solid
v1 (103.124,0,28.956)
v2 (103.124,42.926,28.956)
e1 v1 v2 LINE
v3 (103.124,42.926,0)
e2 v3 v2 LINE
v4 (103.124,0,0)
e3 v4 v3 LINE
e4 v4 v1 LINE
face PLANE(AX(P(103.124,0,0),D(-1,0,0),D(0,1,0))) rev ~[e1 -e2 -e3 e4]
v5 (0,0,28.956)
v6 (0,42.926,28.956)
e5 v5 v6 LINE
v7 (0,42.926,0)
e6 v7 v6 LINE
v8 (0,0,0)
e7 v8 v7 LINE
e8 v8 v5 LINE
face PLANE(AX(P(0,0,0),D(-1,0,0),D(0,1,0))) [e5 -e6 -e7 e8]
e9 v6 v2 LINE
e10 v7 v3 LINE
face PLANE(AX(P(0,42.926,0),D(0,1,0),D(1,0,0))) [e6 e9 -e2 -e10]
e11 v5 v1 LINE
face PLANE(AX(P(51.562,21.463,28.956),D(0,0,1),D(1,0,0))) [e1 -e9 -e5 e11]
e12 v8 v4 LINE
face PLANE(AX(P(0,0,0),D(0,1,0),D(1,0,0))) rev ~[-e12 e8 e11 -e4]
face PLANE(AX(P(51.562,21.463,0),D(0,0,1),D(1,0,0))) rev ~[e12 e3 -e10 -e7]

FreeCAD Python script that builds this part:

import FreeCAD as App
import Part
import Sketcher

V = App.Vector
Q = App.Units.Quantity

doc = App.newDocument("Part")
body = doc.addObject("PartDesign::Body", "Body")

sketch1 = doc.addObject("Sketcher::SketchObject", "Sketch")
body.addObject(sketch1)
sketch1.AttachmentSupport = (doc.XY_Plane, [""])
sketch1.MapMode = "FlatFace"
sketch1.addGeometry(Part.LineSegment(V(0, 43, 0), V(0, 0, 0)), False)
sketch1.addGeometry(Part.LineSegment(V(0, 0, 0), V(103, 0, 0)), False)
sketch1.addGeometry(Part.LineSegment(V(103, 0, 0), V(103, 43, 0)), False)
sketch1.addGeometry(Part.LineSegment(V(103, 43, 0), V(0, 43, 0)), False)
sketch1.addConstraint(Sketcher.Constraint("Coincident", 0, 2, 1, 1))
sketch1.addConstraint(Sketcher.Constraint("Coincident", 1, 2, 2, 1))
sketch1.addConstraint(Sketcher.Constraint("Coincident", 2, 2, 3, 1))
sketch1.addConstraint(Sketcher.Constraint("Coincident", 3, 2, 0, 1))
sketch1.addConstraint(Sketcher.Constraint("Vertical", 0))
sketch1.addConstraint(Sketcher.Constraint("Horizontal", 1))
sketch1.addConstraint(Sketcher.Constraint("Vertical", 2))
sketch1.addConstraint(Sketcher.Constraint("Horizontal", 3))
sketch1.addConstraint(Sketcher.Constraint("Coincident", 0, 2, -1, 1))
sketch1.addConstraint(Sketcher.Constraint("DistanceX", 1, 1, 1, 2, Q("4.06 in")))
sketch1.addConstraint(Sketcher.Constraint("DistanceY", 0, 2, 0, 1, Q("1.69 in")))
pad1 = doc.addObject("PartDesign::Pad", "Pad")
body.addObject(pad1)
pad1.Profile = sketch1
pad1.Length = Q("1.14 in")

doc.recompute()
